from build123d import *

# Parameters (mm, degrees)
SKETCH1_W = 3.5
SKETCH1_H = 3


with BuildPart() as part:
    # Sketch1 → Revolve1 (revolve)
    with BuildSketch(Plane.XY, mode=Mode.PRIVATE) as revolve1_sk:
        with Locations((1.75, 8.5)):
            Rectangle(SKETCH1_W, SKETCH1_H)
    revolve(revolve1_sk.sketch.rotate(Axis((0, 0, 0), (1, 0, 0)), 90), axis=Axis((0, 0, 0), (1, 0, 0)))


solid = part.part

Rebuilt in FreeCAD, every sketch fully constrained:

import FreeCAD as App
import Part
import Sketcher
from FreeCAD import Vector
Q = App.Units.Quantity


def add_polygon(sketch, points):
    """Adds a closed chain of lines whose ends are joined by coincident constraints."""
    first, n = sketch.GeometryCount, len(points)
    for a, b in zip(points, points[1:] + points[:1]):
        sketch.addGeometry(Part.LineSegment(App.Vector(*a, 0), App.Vector(*b, 0)), False)
    for i in range(n):
        sketch.addConstraint(Sketcher.Constraint("Coincident", first + i, 2, first + (i + 1) % n, 1))

doc = App.newDocument("Part")
params = doc.addObject("Spreadsheet::Sheet", "Params")
for row, (alias, value) in enumerate([
    ("sketch1_height", "3 mm"),
    ("sketch1_width", "3.5 mm"),
    ("revolution_angle", "360 deg"),
], start=1):
    params.set(f"A{row}", alias)
    params.set(f"B{row}", "=" + value)
    params.setAlias(f"B{row}", alias)

body = doc.addObject("PartDesign::Body", "Body")

# Sketch on XY plane
sketch1 = doc.addObject("Sketcher::SketchObject", "Sketch")
body.addObject(sketch1)
sketch1.AttachmentSupport = (doc.XY_Plane, [""])
sketch1.MapMode = "FlatFace"
add_polygon(sketch1, [(0, 10), (0, 7), (3.5, 7), (3.5, 10)])  # lines 0-3
sketch1.addConstraint([
    Sketcher.Constraint("Vertical", 0),
    Sketcher.Constraint("Horizontal", 1),
    Sketcher.Constraint("Vertical", 2),
    Sketcher.Constraint("Horizontal", 3),
    Sketcher.Constraint("PointOnObject", 0, 2, -2),
    Sketcher.Constraint("DistanceY", 0, 2, 0, 1, Q("3 mm")),
    Sketcher.Constraint("DistanceX", 1, 1, 1, 2, Q("3.5 mm")),
    Sketcher.Constraint("DistanceY", -1, 1, 0, 2, Q("7 mm")),
])
sketch1.setExpression("Constraints[9]", "Params.sketch1_height")
sketch1.setExpression("Constraints[10]", "Params.sketch1_width")
revolution = doc.addObject("PartDesign::Revolution", "Revolution")
body.addObject(revolution)
revolution.Profile = sketch1
revolution.ReferenceAxis = (sketch1, ["H_Axis"])
revolution.setExpression("Angle", "Params.revolution_angle")

doc.recompute()
